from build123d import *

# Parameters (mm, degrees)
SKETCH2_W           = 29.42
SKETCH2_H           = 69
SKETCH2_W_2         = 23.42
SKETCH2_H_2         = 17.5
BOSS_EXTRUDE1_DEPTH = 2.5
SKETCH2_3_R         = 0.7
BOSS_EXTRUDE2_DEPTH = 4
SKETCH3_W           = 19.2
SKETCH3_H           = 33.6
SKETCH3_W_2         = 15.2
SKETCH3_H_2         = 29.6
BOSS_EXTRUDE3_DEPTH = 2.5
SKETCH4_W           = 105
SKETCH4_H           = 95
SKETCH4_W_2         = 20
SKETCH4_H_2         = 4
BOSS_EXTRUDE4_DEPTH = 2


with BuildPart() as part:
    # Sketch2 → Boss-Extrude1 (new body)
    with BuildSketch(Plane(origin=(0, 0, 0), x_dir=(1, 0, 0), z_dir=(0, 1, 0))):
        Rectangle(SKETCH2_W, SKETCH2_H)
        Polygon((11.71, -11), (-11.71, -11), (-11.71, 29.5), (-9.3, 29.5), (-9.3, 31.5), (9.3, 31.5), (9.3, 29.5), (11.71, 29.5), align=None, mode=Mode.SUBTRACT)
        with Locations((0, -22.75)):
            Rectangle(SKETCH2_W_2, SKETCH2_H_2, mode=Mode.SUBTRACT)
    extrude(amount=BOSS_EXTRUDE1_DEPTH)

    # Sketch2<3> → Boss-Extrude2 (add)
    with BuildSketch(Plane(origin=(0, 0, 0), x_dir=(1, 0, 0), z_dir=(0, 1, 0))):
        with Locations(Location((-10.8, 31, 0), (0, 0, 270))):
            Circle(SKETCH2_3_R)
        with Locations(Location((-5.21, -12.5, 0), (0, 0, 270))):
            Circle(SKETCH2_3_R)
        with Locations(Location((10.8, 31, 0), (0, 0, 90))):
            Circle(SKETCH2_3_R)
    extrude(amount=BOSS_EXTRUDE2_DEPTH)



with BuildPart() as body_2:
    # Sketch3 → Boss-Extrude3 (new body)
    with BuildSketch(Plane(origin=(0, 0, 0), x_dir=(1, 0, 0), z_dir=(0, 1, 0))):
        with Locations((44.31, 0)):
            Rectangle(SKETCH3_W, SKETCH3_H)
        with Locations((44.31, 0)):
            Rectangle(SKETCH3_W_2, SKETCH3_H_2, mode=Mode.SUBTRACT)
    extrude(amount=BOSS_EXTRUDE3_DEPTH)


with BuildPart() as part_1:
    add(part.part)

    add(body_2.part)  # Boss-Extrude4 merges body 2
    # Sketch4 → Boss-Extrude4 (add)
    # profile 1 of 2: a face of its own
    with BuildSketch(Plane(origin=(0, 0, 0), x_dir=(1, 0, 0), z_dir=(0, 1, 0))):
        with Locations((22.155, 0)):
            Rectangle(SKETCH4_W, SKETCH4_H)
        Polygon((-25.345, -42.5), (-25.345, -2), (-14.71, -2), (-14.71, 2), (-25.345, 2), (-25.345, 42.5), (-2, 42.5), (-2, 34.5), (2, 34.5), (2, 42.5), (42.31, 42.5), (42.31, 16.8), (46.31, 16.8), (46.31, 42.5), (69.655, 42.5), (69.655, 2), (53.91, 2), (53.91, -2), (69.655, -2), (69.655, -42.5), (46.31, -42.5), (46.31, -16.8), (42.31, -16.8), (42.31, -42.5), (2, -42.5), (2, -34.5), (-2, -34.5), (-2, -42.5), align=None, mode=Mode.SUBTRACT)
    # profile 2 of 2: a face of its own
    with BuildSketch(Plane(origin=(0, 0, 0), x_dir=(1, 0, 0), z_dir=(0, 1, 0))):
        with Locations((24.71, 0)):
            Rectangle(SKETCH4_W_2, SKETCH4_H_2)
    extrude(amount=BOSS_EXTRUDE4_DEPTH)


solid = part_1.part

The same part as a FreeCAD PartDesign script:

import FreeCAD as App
import Part
import Sketcher
from FreeCAD import Vector

doc = App.newDocument("Part")
params = doc.addObject("Spreadsheet::Sheet", "Params")
for row, (alias, value) in enumerate([
    ("sketch1_height", "69 mm"),
    ("sketch1_height2", "2 mm"),
    ("sketch1_width", "18.6 mm"),
    ("sketch1_height3", "17.5 mm"),
    ("sketch1_height4", "40.5 mm"),
    ("pad1_length", "2.5 mm"),
    ("sketch2_diameter", "1.4 mm"),
    ("pad2_length", "4 mm"),
    ("sketch3_width", "19.2 mm"),
    ("sketch3_width2", "15.2 mm"),
    ("sketch3_height", "33.6 mm"),
    ("sketch3_height2", "29.6 mm"),
    ("pad3_length", "2.5 mm"),
    ("sketch4_width", "105 mm"),
    ("sketch4_width2", "4 mm"),
    ("sketch4_width3", "20 mm"),
    ("sketch4_height", "95 mm"),
    ("sketch4_height2", "8 mm"),
    ("pad4_length", "2 mm"),
], start=1):
    params.set(f"A{row}", alias)
    params.set(f"B{row}", "=" + value)
    params.setAlias(f"B{row}", alias)

body = doc.addObject("PartDesign::Body", "Body")

# Sketch on XZ plane
sketch1 = doc.addObject("Sketcher::SketchObject", "Sketch")
body.addObject(sketch1)
sketch1.AttachmentSupport = (doc.XZ_Plane, [""])
sketch1.MapMode = "FlatFace"
sketch1.addGeometry([
    Part.LineSegment(Vector(-14.7, -34.5, 0), Vector(-14.7, 34.5, 0)),  # 0
    Part.LineSegment(Vector(-14.7, 34.5, 0), Vector(14.7, 34.5, 0)),  # 1
    Part.LineSegment(Vector(14.7, 34.5, 0), Vector(14.7, -34.5, 0)),  # 2
    Part.LineSegment(Vector(14.7, -34.5, 0), Vector(-14.7, -34.5, 0)),  # 3
    Part.LineSegment(Vector(11.7, 31.5, 0), Vector(-11.7, 31.5, 0)),  # 4
    Part.LineSegment(Vector(-11.7, 31.5, 0), Vector(-11.7, 14, 0)),  # 5
    Part.LineSegment(Vector(-11.7, 14, 0), Vector(11.7, 14, 0)),  # 6
    Part.LineSegment(Vector(11.7, 14, 0), Vector(11.7, 31.5, 0)),  # 7
    Part.LineSegment(Vector(11.7, -29.5, 0), Vector(11.7, 11, 0)),  # 8
    Part.LineSegment(Vector(11.7, 11, 0), Vector(-11.7, 11, 0)),  # 9
    Part.LineSegment(Vector(-11.7, 11, 0), Vector(-11.7, -29.5, 0)),  # 10
    Part.LineSegment(Vector(-11.7, -29.5, 0), Vector(-9.3, -29.5, 0)),  # 11
    Part.LineSegment(Vector(-9.3, -29.5, 0), Vector(-9.3, -31.5, 0)),  # 12
    Part.LineSegment(Vector(-9.3, -31.5, 0), Vector(9.3, -31.5, 0)),  # 13
    Part.LineSegment(Vector(9.3, -31.5, 0), Vector(9.3, -29.5, 0)),  # 14
    Part.LineSegment(Vector(9.3, -29.5, 0), Vector(11.7, -29.5, 0)),  # 15
], False)
sketch1.addConstraint([
    Sketcher.Constraint("Coincident", 0, 2, 1, 1),
    Sketcher.Constraint("Coincident", 1, 2, 2, 1),
    Sketcher.Constraint("Coincident", 2, 2, 3, 1),
    Sketcher.Constraint("Coincident", 3, 2, 0, 1),
    Sketcher.Constraint("Coincident", 4, 2, 5, 1),
    Sketcher.Constraint("Coincident", 5, 2, 6, 1),
    Sketcher.Constraint("Coincident", 6, 2, 7, 1),
    Sketcher.Constraint("Coincident", 7, 2, 4, 1),
    Sketcher.Constraint("Coincident", 8, 2, 9, 1),
    Sketcher.Constraint("Coincident", 9, 2, 10, 1),
    Sketcher.Constraint("Coincident", 10, 2, 11, 1),
    Sketcher.Constraint("Coincident", 11, 2, 12, 1),
    Sketcher.Constraint("Coincident", 12, 2, 13, 1),
    Sketcher.Constraint("Coincident", 13, 2, 14, 1),
    Sketcher.Constraint("Coincident", 14, 2, 15, 1),
    Sketcher.Constraint("Coincident", 15, 2, 8, 1),
    Sketcher.Constraint("Vertical", 0),
    Sketcher.Constraint("Horizontal", 1),
    Sketcher.Constraint("Vertical", 2),
    Sketcher.Constraint("Horizontal", 3),
    Sketcher.Constraint("Horizontal", 4),
    Sketcher.Constraint("Vertical", 5),
    Sketcher.Constraint("Horizontal", 6),
    Sketcher.Constraint("Vertical", 7),
    Sketcher.Constraint("Vertical", 8),
    Sketcher.Constraint("Horizontal", 9),
    Sketcher.Constraint("Vertical", 10),
    Sketcher.Constraint("Horizontal", 11),
    Sketcher.Constraint("Vertical", 12),
    Sketcher.Constraint("Horizontal", 13),
    Sketcher.Constraint("Vertical", 14),
    Sketcher.Constraint("Horizontal", 15),
    Sketcher.Constraint("Symmetric", 0, 2, 2, 2, -1, 1),
    Sketcher.Constraint("Symmetric", 11, 2, 14, 2, -2),
    Sketcher.Constraint("Vertical", 7, 2, 8, 2),
    Sketcher.Constraint("Vertical", 5, 2, 9, 2),
    Sketcher.Constraint("Equal", 11, 15),
    Sketcher.Constraint("DistanceY", 0, 1, 0, 2, 69.0),
    Sketcher.Constraint("DistanceY", 12, 2, 12, 1, 2.0),
    Sketcher.Constraint("DistanceX", 13, 1, 13, 2, 18.6),
    Sketcher.Constraint("DistanceY", 5, 2, 5, 1, 17.5),
    Sketcher.Constraint("DistanceY", 8, 1, 8, 2, 40.5),
    Sketcher.Constraint("DistanceY", -1, 1, 5, 2, 14.0),
    Sketcher.Constraint("DistanceY", -1, 1, 8, 2, 11.0),
    Sketcher.Constraint("DistanceX", 0, 2, 4, 2, 3.0),
    Sketcher.Constraint("DistanceX", 1, 1, 1, 2, 29.42),
])
sketch1.setExpression("Constraints[37]", "Params.sketch1_height")
sketch1.setExpression("Constraints[38]", "Params.sketch1_height2")
sketch1.setExpression("Constraints[39]", "Params.sketch1_width")
sketch1.setExpression("Constraints[40]", "Params.sketch1_height3")
sketch1.setExpression("Constraints[41]", "Params.sketch1_height4")
pad1 = doc.addObject("PartDesign::Pad", "Pad")
body.addObject(pad1)
pad1.Profile = sketch1
pad1.setExpression("Length", "Params.pad1_length")
pad1.Reversed = True

# Sketch on XZ plane
sketch2 = doc.addObject("Sketcher::SketchObject", "Sketch001")
body.addObject(sketch2)
sketch2.AttachmentSupport = (doc.XZ_Plane, [""])
sketch2.MapMode = "FlatFace"
sketch2.addGeometry([
    Part.Circle(Vector(-10.8, -31, 0), Vector(0, 0, 1), 0.7),
    Part.Circle(Vector(-5.2, 12.5, 0), Vector(0, 0, 1), 0.7),
    Part.Circle(Vector(10.8, -31, 0), Vector(0, 0, 1), 0.7),
], False)
sketch2.addConstraint([
    Sketcher.Constraint("Equal", 0, 1),
    Sketcher.Constraint("Equal", 1, 2),
    Sketcher.Constraint("Symmetric", 0, 3, 2, 3, -2),
    Sketcher.Constraint("Diameter", 0, 1.4),
    Sketcher.Constraint("DistanceY", 0, 3, -1, 1, 31.0),
    Sketcher.Constraint("DistanceX", 0, 3, -1, 1, 10.8),
    Sketcher.Constraint("DistanceY", -1, 1, 1, 3, 12.5),
    Sketcher.Constraint("DistanceX", 1, 3, -1, 1, 5.21),
])
sketch2.setExpression("Constraints[3]", "Params.sketch2_diameter")
pad2 = doc.addObject("PartDesign::Pad", "Pad001")
body.addObject(pad2)
pad2.Profile = sketch2
pad2.setExpression("Length", "Params.pad2_length")
pad2.Reversed = True
body2 = doc.addObject("PartDesign::Body", "Body001")

# Sketch on XZ plane
sketch3 = doc.addObject("Sketcher::SketchObject", "Sketch002")
body2.addObject(sketch3)
sketch3.AttachmentSupport = (doc.getObject("XZ_Plane001"), [""])
sketch3.MapMode = "FlatFace"
sketch3.addGeometry([
    Part.LineSegment(Vector(35, -17, 0), Vector(35, 17, 0)),  # 0
    Part.LineSegment(Vector(35, 17, 0), Vector(54, 17, 0)),  # 1
    Part.LineSegment(Vector(54, 17, 0), Vector(54, -17, 0)),  # 2
    Part.LineSegment(Vector(54, -17, 0), Vector(35, -17, 0)),  # 3
    Part.LineSegment(Vector(52, 15, 0), Vector(37, 15, 0)),  # 4
    Part.LineSegment(Vector(37, 15, 0), Vector(37, -15, 0)),  # 5
    Part.LineSegment(Vector(37, -15, 0), Vector(52, -15, 0)),  # 6
    Part.LineSegment(Vector(52, -15, 0), Vector(52, 15, 0)),  # 7
], False)
sketch3.addConstraint([
    Sketcher.Constraint("Coincident", 0, 2, 1, 1),
    Sketcher.Constraint("Coincident", 1, 2, 2, 1),
    Sketcher.Constraint("Coincident", 2, 2, 3, 1),
    Sketcher.Constraint("Coincident", 3, 2, 0, 1),
    Sketcher.Constraint("Coincident", 4, 2, 5, 1),
    Sketcher.Constraint("Coincident", 5, 2, 6, 1),
    Sketcher.Constraint("Coincident", 6, 2, 7, 1),
    Sketcher.Constraint("Coincident", 7, 2, 4, 1),
    Sketcher.Constraint("Vertical", 0),
    Sketcher.Constraint("Horizontal", 1),
    Sketcher.Constraint("Vertical", 2),
    Sketcher.Constraint("Horizontal", 3),
    Sketcher.Constraint("Horizontal", 4),
    Sketcher.Constraint("Vertical", 5),
    Sketcher.Constraint("Horizontal", 6),
    Sketcher.Constraint("Vertical", 7),
    Sketcher.Constraint("DistanceX", 1, 1, 1, 2, 19.2),
    Sketcher.Constraint("DistanceX", 4, 2, 4, 1, 15.2),
    Sketcher.Constraint("DistanceY", 0, 1, 0, 2, 33.6),
    Sketcher.Constraint("DistanceY", 5, 2, 5, 1, 29.6),
    Sketcher.Constraint("DistanceX", 0, 2, 4, 2, 2.0),
    Sketcher.Constraint("DistanceY", 4, 2, 0, 2, 2.0),
    Sketcher.Constraint("DistanceY", -1, 1, 0, 2, 16.8),
    Sketcher.Constraint("DistanceX", -1, 1, 0, 2, 34.71),
])
sketch3.setExpression("Constraints[16]", "Params.sketch3_width")
sketch3.setExpression("Constraints[17]", "Params.sketch3_width2")
sketch3.setExpression("Constraints[18]", "Params.sketch3_height")
sketch3.setExpression("Constraints[19]", "Params.sketch3_height2")
pad3 = doc.addObject("PartDesign::Pad", "Pad002")
body2.addObject(pad3)
pad3.Profile = sketch3
pad3.setExpression("Length", "Params.pad3_length")
pad3.Reversed = True
body.AllowCompound = True
doc.recompute()

boolean = doc.addObject("PartDesign::Boolean", "Boolean")
body.addObject(boolean)
boolean.Type = "Fuse"
boolean.addObjects([body2])

# Sketch on XZ plane
sketch4 = doc.addObject("Sketcher::SketchObject", "Sketch003")
body.addObject(sketch4)
sketch4.AttachmentSupport = (doc.XZ_Plane, [""])
sketch4.MapMode = "FlatFace"
sketch4.addGeometry([
    Part.LineSegment(Vector(-30.3, -47.5, 0), Vector(-30.3, 47.5, 0)),  # 0
    Part.LineSegment(Vector(-30.3, 47.5, 0), Vector(74.7, 47.5, 0)),  # 1
    Part.LineSegment(Vector(74.7, 47.5, 0), Vector(74.7, -47.5, 0)),  # 2
    Part.LineSegment(Vector(74.7, -47.5, 0), Vector(-30.3, -47.5, 0)),  # 3
    Part.LineSegment(Vector(-2, 42.5, 0), Vector(-25.3, 42.5, 0)),  # 4
    Part.LineSegment(Vector(-25.3, 42.5, 0), Vector(-25.3, 2, 0)),  # 5
    Part.LineSegment(Vector(-25.3, 2, 0), Vector(-14.7, 2, 0)),  # 6
    Part.LineSegment(Vector(-14.7, 2, 0), Vector(-14.7, -2, 0)),  # 7
    Part.LineSegment(Vector(-14.7, -2, 0), Vector(-25.3, -2, 0)),  # 8
    Part.LineSegment(Vector(-25.3, -2, 0), Vector(-25.3, -42.5, 0)),  # 9
    Part.LineSegment(Vector(-25.3, -42.5, 0), Vector(-2, -42.5, 0)),  # 10
    Part.LineSegment(Vector(-2, -42.5, 0), Vector(-2, -34.5, 0)),  # 11
    Part.LineSegment(Vector(-2, -34.5, 0), Vector(2, -34.5, 0)),  # 12
    Part.LineSegment(Vector(2, -34.5, 0), Vector(2, -42.5, 0)),  # 13
    Part.LineSegment(Vector(2, -42.5, 0), Vector(42.3, -42.5, 0)),  # 14
    Part.LineSegment(Vector(42.3, -42.5, 0), Vector(42.3, -16.8, 0)),  # 15
    Part.LineSegment(Vector(42.3, -16.8, 0), Vector(46.3, -16.8, 0)),  # 16
    Part.LineSegment(Vector(46.3, -16.8, 0), Vector(46.3, -42.5, 0)),  # 17
    Part.LineSegment(Vector(46.3, -42.5, 0), Vector(69.7, -42.5, 0)),  # 18
    Part.LineSegment(Vector(69.7, -42.5, 0), Vector(69.7, -2, 0)),  # 19
    Part.LineSegment(Vector(69.7, -2, 0), Vector(53.9, -2, 0)),  # 20
    Part.LineSegment(Vector(53.9, -2, 0), Vector(53.9, 2, 0)),  # 21
    Part.LineSegment(Vector(53.9, 2, 0), Vector(69.7, 2, 0)),  # 22
    Part.LineSegment(Vector(69.7, 2, 0), Vector(69.7, 42.5, 0)),  # 23
    Part.LineSegment(Vector(69.7, 42.5, 0), Vector(46.3, 42.5, 0)),  # 24
    Part.LineSegment(Vector(46.3, 42.5, 0), Vector(46.3, 16.8, 0)),  # 25
    Part.LineSegment(Vector(46.3, 16.8, 0), Vector(42.3, 16.8, 0)),  # 26
    Part.LineSegment(Vector(42.3, 16.8, 0), Vector(42.3, 42.5, 0)),  # 27
    Part.LineSegment(Vector(42.3, 42.5, 0), Vector(2, 42.5, 0)),  # 28
    Part.LineSegment(Vector(2, 42.5, 0), Vector(2, 34.5, 0)),  # 29
    Part.LineSegment(Vector(2, 34.5, 0), Vector(-2, 34.5, 0)),  # 30
    Part.LineSegment(Vector(-2, 34.5, 0), Vector(-2, 42.5, 0)),  # 31
    Part.LineSegment(Vector(14.7, -2, 0), Vector(14.7, 2, 0)),  # 32
    Part.LineSegment(Vector(14.7, 2, 0), Vector(34.7, 2, 0)),  # 33
    Part.LineSegment(Vector(34.7, 2, 0), Vector(34.7, -2, 0)),  # 34
    Part.LineSegment(Vector(34.7, -2, 0), Vector(14.7, -2, 0)),  # 35
], False)
sketch4.addConstraint([
    Sketcher.Constraint("Coincident", 0, 2, 1, 1),
    Sketcher.Constraint("Coincident", 1, 2, 2, 1),
    Sketcher.Constraint("Coincident", 2, 2, 3, 1),
    Sketcher.Constraint("Coincident", 3, 2, 0, 1),
    Sketcher.Constraint("Coincident", 4, 2, 5, 1),
    Sketcher.Constraint("Coincident", 5, 2, 6, 1),
    Sketcher.Constraint("Coincident", 6, 2, 7, 1),
    Sketcher.Constraint("Coincident", 7, 2, 8, 1),
    Sketcher.Constraint("Coincident", 8, 2, 9, 1),
    Sketcher.Constraint("Coincident", 9, 2, 10, 1),
    Sketcher.Constraint("Coincident", 10, 2, 11, 1),
    Sketcher.Constraint("Coincident", 11, 2, 12, 1),
    Sketcher.Constraint("Coincident", 12, 2, 13, 1),
    Sketcher.Constraint("Coincident", 13, 2, 14, 1),
    Sketcher.Constraint("Coincident", 14, 2, 15, 1),
    Sketcher.Constraint("Coincident", 15, 2, 16, 1),
    Sketcher.Constraint("Coincident", 16, 2, 17, 1),
    Sketcher.Constraint("Coincident", 17, 2, 18, 1),
    Sketcher.Constraint("Coincident", 18, 2, 19, 1),
    Sketcher.Constraint("Coincident", 19, 2, 20, 1),
    Sketcher.Constraint("Coincident", 20, 2, 21, 1),
    Sketcher.Constraint("Coincident", 21, 2, 22, 1),
    Sketcher.Constraint("Coincident", 22, 2, 23, 1),
    Sketcher.Constraint("Coincident", 23, 2, 24, 1),
    Sketcher.Constraint("Coincident", 24, 2, 25, 1),
    Sketcher.Constraint("Coincident", 25, 2, 26, 1),
    Sketcher.Constraint("Coincident", 26, 2, 27, 1),
    Sketcher.Constraint("Coincident", 27, 2, 28, 1),
    Sketcher.Constraint("Coincident", 28, 2, 29, 1),
    Sketcher.Constraint("Coincident", 29, 2, 30, 1),
    Sketcher.Constraint("Coincident", 30, 2, 31, 1),
    Sketcher.Constraint("Coincident", 31, 2, 4, 1),
    Sketcher.Constraint("Coincident", 32, 2, 33, 1),
    Sketcher.Constraint("Coincident", 33, 2, 34, 1),
    Sketcher.Constraint("Coincident", 34, 2, 35, 1),
    Sketcher.Constraint("Coincident", 35, 2, 32, 1),
    Sketcher.Constraint("Vertical", 0),
    Sketcher.Constraint("Horizontal", 1),
    Sketcher.Constraint("Vertical", 2),
    Sketcher.Constraint("Horizontal", 3),
    Sketcher.Constraint("Horizontal", 4),
    Sketcher.Constraint("Vertical", 5),
    Sketcher.Constraint("Horizontal", 6),
    Sketcher.Constraint("Vertical", 7),
    Sketcher.Constraint("Horizontal", 8),
    Sketcher.Constraint("Vertical", 9),
    Sketcher.Constraint("Horizontal", 10),
    Sketcher.Constraint("Vertical", 11),
    Sketcher.Constraint("Horizontal", 12),
    Sketcher.Constraint("Vertical", 13),
    Sketcher.Constraint("Horizontal", 14),
    Sketcher.Constraint("Vertical", 15),
    Sketcher.Constraint("Horizontal", 16),
    Sketcher.Constraint("Vertical", 17),
    Sketcher.Constraint("Horizontal", 18),
    Sketcher.Constraint("Vertical", 19),
    Sketcher.Constraint("Horizontal", 20),
    Sketcher.Constraint("Vertical", 21),
    Sketcher.Constraint("Horizontal", 22),
    Sketcher.Constraint("Vertical", 23),
    Sketcher.Constraint("Horizontal", 24),
    Sketcher.Constraint("Vertical", 25),
    Sketcher.Constraint("Horizontal", 26),
    Sketcher.Constraint("Vertical", 27),
    Sketcher.Constraint("Horizontal", 28),
    Sketcher.Constraint("Vertical", 29),
    Sketcher.Constraint("Horizontal", 30),
    Sketcher.Constraint("Vertical", 31),
    Sketcher.Constraint("Vertical", 32),
    Sketcher.Constraint("Horizontal", 33),
    Sketcher.Constraint("Vertical", 34),
    Sketcher.Constraint("Horizontal", 35),
    Sketcher.Constraint("Symmetric", 10, 2, 28, 2, -1, 1),
    Sketcher.Constraint("Symmetric", 12, 2, 30, 2, -1, 1),
    Sketcher.Constraint("Symmetric", 7, 2, 32, 2, -1, 1),
    Sketcher.Constraint("Symmetric", 10, 2, 13, 2, -2),
    Sketcher.Constraint("Symmetric", 5, 2, 8, 2, -1),
    Sketcher.Constraint("Symmetric", 19, 2, 22, 2, -1),
    Sketcher.Constraint("Symmetric", 17, 2, 24, 2, -1),
    Sketcher.Constraint("Symmetric", 15, 2, 26, 2, -1),
    Sketcher.Constraint("Horizontal", 14, 2, 17, 2),
    Sketcher.Constraint("Horizontal", 8, 2, 19, 2),
    Sketcher.Constraint("Horizontal", 4, 2, 23, 2),
    Sketcher.Constraint("Horizontal", 20, 2, 34, 2),
    Sketcher.Constraint("Equal", 12, 16),
    Sketcher.Constraint("Equal", 10, 18),
    Sketcher.Constraint("Equal", 30, 7),
    Sketcher.Constraint("DistanceX", 1, 1, 1, 2, 105.0),
    Sketcher.Constraint("DistanceX", 12, 1, 12, 2, 4.0),
    Sketcher.Constraint("DistanceX", 33, 1, 33, 2, 20.0),
    Sketcher.Constraint("DistanceY", 0, 1, 0, 2, 95.0),
    Sketcher.Constraint("DistanceY", 11, 1, 11, 2, 8.0),
    Sketcher.Constraint("DistanceY", 5, 2, 5, 1, 40.5),
    Sketcher.Constraint("DistanceY", 15, 1, 15, 2, 25.7),
    Sketcher.Constraint("DistanceX", 0, 2, 4, 2, 5.0),
    Sketcher.Constraint("DistanceY", 4, 2, 0, 2, 5.0),
    Sketcher.Constraint("DistanceX", 18, 2, 2, 2, 5.0),
    Sketcher.Constraint("DistanceX", 14, 1, 14, 2, 40.31),
    Sketcher.Constraint("DistanceX", 16, 2, 20, 2, 7.6),
    Sketcher.Constraint("DistanceX", 32, 2, 26, 2, 27.6),
])
sketch4.setExpression("Constraints[87]", "Params.sketch4_width")
sketch4.setExpression("Constraints[88]", "Params.sketch4_width2")
sketch4.setExpression("Constraints[89]", "Params.sketch4_width3")
sketch4.setExpression("Constraints[90]", "Params.sketch4_height")
sketch4.setExpression("Constraints[91]", "Params.sketch4_height2")
pad4 = doc.addObject("PartDesign::Pad", "Pad003")
body.addObject(pad4)
pad4.Profile = sketch4
pad4.setExpression("Length", "Params.pad4_length")
pad4.Reversed = True

doc.recompute()
